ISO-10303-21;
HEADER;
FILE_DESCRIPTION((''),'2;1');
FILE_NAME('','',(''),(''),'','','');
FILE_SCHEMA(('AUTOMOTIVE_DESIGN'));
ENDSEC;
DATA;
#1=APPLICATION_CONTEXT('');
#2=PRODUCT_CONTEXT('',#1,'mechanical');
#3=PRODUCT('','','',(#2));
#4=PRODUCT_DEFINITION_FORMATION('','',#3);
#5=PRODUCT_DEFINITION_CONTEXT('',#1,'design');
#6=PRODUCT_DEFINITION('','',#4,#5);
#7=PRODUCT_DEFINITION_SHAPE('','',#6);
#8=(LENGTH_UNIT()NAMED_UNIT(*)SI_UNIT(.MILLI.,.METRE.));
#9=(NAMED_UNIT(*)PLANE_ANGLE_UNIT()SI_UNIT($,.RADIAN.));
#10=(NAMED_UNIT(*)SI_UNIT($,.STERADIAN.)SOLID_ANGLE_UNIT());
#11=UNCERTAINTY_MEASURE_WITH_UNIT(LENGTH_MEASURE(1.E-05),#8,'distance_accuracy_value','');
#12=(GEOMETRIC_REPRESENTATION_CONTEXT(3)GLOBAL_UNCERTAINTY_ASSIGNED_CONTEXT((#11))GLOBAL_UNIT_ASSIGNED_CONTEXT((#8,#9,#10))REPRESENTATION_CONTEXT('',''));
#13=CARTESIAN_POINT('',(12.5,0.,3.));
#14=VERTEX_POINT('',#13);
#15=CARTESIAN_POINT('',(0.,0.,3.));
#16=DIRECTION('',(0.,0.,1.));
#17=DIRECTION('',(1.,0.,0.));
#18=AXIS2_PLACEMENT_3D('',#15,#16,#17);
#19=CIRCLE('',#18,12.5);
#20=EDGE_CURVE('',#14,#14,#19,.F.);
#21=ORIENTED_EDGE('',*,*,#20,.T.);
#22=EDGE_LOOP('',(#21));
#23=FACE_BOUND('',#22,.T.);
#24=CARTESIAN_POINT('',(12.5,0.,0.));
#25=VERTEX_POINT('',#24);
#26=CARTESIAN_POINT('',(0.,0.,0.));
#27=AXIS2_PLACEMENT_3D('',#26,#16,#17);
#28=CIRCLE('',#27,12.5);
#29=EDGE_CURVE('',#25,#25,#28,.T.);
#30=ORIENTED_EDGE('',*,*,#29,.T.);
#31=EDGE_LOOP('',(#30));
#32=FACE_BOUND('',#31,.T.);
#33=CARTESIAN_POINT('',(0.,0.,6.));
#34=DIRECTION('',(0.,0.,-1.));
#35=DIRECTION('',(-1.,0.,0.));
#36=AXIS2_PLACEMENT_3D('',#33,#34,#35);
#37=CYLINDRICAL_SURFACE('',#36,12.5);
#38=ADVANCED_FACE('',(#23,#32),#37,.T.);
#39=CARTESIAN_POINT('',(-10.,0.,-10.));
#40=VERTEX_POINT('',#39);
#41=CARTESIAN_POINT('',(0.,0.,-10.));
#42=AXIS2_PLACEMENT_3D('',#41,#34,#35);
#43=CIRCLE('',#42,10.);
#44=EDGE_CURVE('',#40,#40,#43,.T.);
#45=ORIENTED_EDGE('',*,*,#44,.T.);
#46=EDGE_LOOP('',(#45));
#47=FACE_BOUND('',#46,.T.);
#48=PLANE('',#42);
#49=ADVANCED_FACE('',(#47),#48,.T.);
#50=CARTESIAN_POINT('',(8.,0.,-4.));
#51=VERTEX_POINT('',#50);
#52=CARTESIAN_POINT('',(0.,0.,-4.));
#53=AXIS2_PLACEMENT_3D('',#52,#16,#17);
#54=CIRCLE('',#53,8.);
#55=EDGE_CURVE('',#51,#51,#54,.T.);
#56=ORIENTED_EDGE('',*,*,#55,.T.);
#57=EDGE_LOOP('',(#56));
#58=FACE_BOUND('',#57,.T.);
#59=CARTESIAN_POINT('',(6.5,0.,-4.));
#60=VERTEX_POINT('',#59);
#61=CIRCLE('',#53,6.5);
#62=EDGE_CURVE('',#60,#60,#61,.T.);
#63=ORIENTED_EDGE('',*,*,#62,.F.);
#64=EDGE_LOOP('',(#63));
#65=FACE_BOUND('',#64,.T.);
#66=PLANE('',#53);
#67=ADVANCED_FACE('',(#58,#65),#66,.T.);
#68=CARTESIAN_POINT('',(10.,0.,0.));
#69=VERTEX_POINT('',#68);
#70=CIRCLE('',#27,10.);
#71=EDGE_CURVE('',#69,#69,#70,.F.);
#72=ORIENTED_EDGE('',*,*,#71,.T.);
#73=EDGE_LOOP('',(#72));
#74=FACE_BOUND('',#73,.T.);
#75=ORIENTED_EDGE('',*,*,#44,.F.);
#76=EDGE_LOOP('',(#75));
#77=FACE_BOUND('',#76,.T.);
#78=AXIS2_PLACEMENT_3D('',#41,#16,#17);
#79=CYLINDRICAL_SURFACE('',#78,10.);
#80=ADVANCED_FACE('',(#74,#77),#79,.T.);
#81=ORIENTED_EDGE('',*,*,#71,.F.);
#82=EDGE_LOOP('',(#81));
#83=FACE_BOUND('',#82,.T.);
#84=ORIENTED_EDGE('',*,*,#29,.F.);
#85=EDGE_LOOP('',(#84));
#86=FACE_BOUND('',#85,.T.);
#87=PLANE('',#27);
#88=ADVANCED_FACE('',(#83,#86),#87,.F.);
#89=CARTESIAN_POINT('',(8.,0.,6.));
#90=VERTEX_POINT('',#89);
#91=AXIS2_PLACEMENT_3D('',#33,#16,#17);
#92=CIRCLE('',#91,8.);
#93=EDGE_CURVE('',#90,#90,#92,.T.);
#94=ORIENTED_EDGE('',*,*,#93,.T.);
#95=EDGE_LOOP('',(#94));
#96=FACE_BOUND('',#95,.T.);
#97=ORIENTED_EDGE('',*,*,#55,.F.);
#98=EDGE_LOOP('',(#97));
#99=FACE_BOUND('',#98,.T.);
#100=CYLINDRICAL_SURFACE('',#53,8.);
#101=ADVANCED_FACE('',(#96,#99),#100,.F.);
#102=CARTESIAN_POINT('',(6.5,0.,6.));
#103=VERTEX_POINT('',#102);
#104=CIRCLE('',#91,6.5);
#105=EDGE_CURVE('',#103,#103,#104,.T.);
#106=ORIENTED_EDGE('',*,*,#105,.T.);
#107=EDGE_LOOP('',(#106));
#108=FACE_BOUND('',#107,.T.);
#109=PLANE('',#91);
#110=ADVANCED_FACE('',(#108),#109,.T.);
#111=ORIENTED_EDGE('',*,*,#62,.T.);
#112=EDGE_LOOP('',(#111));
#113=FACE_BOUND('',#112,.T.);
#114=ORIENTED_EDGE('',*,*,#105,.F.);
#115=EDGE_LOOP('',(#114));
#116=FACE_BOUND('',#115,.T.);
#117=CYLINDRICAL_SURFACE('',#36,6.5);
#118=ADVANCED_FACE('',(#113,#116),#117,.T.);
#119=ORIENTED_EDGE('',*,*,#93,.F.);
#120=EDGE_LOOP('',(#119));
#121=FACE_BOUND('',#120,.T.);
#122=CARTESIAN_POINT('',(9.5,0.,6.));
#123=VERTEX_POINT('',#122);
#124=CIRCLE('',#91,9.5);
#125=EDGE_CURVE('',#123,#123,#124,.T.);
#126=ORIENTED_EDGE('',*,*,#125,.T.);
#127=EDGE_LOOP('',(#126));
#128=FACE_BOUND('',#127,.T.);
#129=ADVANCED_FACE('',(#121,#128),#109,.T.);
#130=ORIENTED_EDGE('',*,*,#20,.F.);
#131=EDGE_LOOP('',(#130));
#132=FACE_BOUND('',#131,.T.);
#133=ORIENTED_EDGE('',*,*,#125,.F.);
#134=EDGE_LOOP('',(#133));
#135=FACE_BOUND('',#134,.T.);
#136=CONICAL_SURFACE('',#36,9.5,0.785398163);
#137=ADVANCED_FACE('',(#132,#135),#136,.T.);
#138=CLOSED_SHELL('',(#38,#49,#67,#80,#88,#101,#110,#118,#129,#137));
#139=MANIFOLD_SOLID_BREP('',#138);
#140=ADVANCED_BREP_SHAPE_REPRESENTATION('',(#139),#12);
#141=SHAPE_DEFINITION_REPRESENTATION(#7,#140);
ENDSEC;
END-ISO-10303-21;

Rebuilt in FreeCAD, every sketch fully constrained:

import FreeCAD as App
import Part
import Sketcher
Q = App.Units.Quantity


def edges_at(feature, points):
    """Names of the edges that pass closest to the given points."""
    edges = feature.Shape.Edges
    near = lambda p: min(range(len(edges)), key=lambda i: edges[i].distToShape(Part.Vertex(*p))[0])
    return sorted({f"Edge{near(p) + 1}" for p in points})

doc = App.newDocument("Part")
body = doc.addObject("PartDesign::Body", "Body")

sketch1 = body.newObject("Sketcher::SketchObject", "Sketch")
sketch1.AttachmentSupport = (doc.getObject("XY_Plane"), [""])
sketch1.MapMode = "FlatFace"
sketch1.addGeometry(Part.Circle(App.Vector(0, 0, 0), App.Vector(0, 0, 1), 12), False)
sketch1.addConstraint(Sketcher.Constraint("Coincident", 0, 3, -1, 1))
sketch1.addConstraint(Sketcher.Constraint("Diameter", 0, Q("25 mm")))
pad1 = body.newObject("PartDesign::Pad", "Pad")
pad1.Profile = sketch1
pad1.Length = 6
doc.recompute()

chamfer = body.newObject("PartDesign::Chamfer", "Chamfer")
chamfer.Base = (pad1, edges_at(pad1, [(-12.5, 0, 6)]))
chamfer.Size = 3

sketch2 = body.newObject("Sketcher::SketchObject", "Sketch001")
sketch2.AttachmentSupport = (doc.getObject("XY_Plane"), [""])
sketch2.MapMode = "FlatFace"
sketch2.addGeometry(Part.Circle(App.Vector(0, 0, 0), App.Vector(0, 0, 1), 10), False)
sketch2.addConstraint(Sketcher.Constraint("Coincident", 0, 3, -1, 1))
sketch2.addConstraint(Sketcher.Constraint("Diameter", 0, Q("20 mm")))
pad2 = body.newObject("PartDesign::Pad", "Pad001")
pad2.Profile = sketch2
pad2.Length = 10
pad2.Reversed = True

sketch3 = body.newObject("Sketcher::SketchObject", "Sketch002")
sketch3.AttachmentSupport = (doc.getObject("XY_Plane"), [""])
sketch3.MapMode = "FlatFace"
sketch3.AttachmentOffset = App.Placement(App.Vector(0, 0, 6), App.Rotation())
sketch3.addGeometry(Part.Circle(App.Vector(0, 0, 0), App.Vector(0, 0, 1), 8), False)
sketch3.addConstraint(Sketcher.Constraint("Coincident", 0, 3, -1, 1))
sketch3.addConstraint(Sketcher.Constraint("Diameter", 0, Q("16 mm")))
pocket1 = body.newObject("PartDesign::Pocket", "Pocket")
pocket1.Profile = sketch3
pocket1.Length = 10

sketch4 = body.newObject("Sketcher::SketchObject", "Sketch003")
sketch4.AttachmentSupport = (doc.getObject("XY_Plane"), [""])
sketch4.MapMode = "FlatFace"
sketch4.AttachmentOffset = App.Placement(App.Vector(0, 0, -4), App.Rotation())
sketch4.addGeometry(Part.Circle(App.Vector(0, 0, 0), App.Vector(0, 0, 1), 6), False)
sketch4.addConstraint(Sketcher.Constraint("Coincident", 0, 3, -1, 1))
sketch4.addConstraint(Sketcher.Constraint("Diameter", 0, Q("13 mm")))
pad3 = body.newObject("PartDesign::Pad", "Pad002")
pad3.Profile = sketch4
pad3.Length = 10

doc.recompute()
